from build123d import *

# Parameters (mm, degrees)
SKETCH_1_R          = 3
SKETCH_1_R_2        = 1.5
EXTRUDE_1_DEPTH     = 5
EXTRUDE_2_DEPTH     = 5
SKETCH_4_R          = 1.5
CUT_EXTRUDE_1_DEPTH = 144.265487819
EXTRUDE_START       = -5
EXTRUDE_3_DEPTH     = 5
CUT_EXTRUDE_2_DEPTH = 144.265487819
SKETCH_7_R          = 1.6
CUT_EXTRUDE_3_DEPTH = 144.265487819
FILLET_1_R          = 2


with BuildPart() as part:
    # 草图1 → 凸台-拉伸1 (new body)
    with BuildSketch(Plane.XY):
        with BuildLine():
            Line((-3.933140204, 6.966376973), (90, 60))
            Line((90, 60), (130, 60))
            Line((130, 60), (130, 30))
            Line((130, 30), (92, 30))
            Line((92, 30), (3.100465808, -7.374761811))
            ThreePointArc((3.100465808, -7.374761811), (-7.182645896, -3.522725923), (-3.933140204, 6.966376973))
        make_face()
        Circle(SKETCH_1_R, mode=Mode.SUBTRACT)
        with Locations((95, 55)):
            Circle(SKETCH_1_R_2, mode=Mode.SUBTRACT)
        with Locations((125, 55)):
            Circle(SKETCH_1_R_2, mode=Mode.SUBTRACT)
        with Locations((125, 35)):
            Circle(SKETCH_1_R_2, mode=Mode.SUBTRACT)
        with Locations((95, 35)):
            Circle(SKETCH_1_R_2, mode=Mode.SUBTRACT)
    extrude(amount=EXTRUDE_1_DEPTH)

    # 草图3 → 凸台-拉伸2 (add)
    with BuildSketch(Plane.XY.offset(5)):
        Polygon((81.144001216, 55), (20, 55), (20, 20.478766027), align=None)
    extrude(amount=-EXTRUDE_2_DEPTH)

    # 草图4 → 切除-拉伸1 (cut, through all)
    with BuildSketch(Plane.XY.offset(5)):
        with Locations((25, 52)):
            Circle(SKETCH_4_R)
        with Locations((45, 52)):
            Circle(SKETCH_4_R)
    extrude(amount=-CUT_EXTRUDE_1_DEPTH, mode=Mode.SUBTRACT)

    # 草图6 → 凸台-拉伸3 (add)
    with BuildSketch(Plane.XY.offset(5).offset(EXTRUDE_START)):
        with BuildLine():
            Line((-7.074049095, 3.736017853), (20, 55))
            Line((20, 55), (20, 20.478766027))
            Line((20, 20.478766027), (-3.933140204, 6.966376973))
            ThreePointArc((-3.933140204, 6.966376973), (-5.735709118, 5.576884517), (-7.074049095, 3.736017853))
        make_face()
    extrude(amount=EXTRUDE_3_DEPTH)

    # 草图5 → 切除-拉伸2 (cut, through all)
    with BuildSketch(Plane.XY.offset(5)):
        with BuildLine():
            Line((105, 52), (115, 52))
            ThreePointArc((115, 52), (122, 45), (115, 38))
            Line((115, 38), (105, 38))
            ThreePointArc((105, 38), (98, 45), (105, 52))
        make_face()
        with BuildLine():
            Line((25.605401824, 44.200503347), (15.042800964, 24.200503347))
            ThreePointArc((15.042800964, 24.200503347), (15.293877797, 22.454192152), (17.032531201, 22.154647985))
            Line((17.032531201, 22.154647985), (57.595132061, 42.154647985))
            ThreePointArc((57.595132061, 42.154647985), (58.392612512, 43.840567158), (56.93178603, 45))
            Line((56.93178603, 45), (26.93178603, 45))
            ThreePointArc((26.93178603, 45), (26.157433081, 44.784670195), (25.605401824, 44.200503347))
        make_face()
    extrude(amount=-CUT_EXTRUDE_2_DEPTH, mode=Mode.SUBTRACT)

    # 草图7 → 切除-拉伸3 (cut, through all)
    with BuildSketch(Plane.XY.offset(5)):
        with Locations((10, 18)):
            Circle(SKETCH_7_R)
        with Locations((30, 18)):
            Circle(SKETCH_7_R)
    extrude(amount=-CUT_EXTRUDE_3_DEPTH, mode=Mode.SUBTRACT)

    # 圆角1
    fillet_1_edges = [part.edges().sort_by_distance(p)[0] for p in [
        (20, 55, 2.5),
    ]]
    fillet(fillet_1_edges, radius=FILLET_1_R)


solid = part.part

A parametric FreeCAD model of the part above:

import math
import FreeCAD as App
import Part
import Sketcher
from FreeCAD import Vector
Q = App.Units.Quantity


def edges_at(feature, points):
    """Names of the edges that pass closest to the given points."""
    edges = feature.Shape.Edges
    near = lambda p: min(range(len(edges)), key=lambda i: edges[i].distToShape(Part.Vertex(*p))[0])
    return sorted({f"Edge{near(p) + 1}" for p in points})


def add_polygon(sketch, points):
    """Adds a closed chain of lines whose ends are joined by coincident constraints."""
    first, n = sketch.GeometryCount, len(points)
    for a, b in zip(points, points[1:] + points[:1]):
        sketch.addGeometry(Part.LineSegment(App.Vector(*a, 0), App.Vector(*b, 0)), False)
    for i in range(n):
        sketch.addConstraint(Sketcher.Constraint("Coincident", first + i, 2, first + (i + 1) % n, 1))

doc = App.newDocument("Part")
body = doc.addObject("PartDesign::Body", "Body")

sketch1 = body.newObject("Sketcher::SketchObject", "Sketch")
sketch1.AttachmentSupport = (doc.getObject("XY_Plane"), [""])
sketch1.MapMode = "FlatFace"
sketch1.addGeometry([
    Part.LineSegment(Vector(90, 60, 0), Vector(-3.9, 7, 0)),
    Part.ArcOfCircle(Part.Circle(Vector(0, 0, 0), Vector(0, 0, 1), 8), math.radians(119), math.radians(293)),
    Part.LineSegment(Vector(3.1, -7.4, 0), Vector(92, 30, 0)),
    Part.LineSegment(Vector(92, 30, 0), Vector(130, 30, 0)),
    Part.LineSegment(Vector(130, 30, 0), Vector(130, 60, 0)),
    Part.LineSegment(Vector(130, 60, 0), Vector(90, 60, 0)),
    Part.Circle(Vector(0, 0, 0), Vector(0, 0, 1), 3),
    Part.Circle(Vector(125, 35, 0), Vector(0, 0, 1), 1.5),
    Part.Circle(Vector(95, 35, 0), Vector(0, 0, 1), 1.5),
    Part.Circle(Vector(125, 55, 0), Vector(0, 0, 1), 1.5),
    Part.Circle(Vector(95, 55, 0), Vector(0, 0, 1), 1.5),
], False)
sketch1.addConstraint([
    Sketcher.Constraint("Tangent", 0, 2, 1, 1),
    Sketcher.Constraint("Tangent", 1, 2, 2, 1),
    Sketcher.Constraint("Coincident", 2, 2, 3, 1),
    Sketcher.Constraint("Coincident", 3, 2, 4, 1),
    Sketcher.Constraint("Coincident", 4, 2, 5, 1),
    Sketcher.Constraint("Coincident", 5, 2, 0, 1),
    Sketcher.Constraint("Horizontal", 3),
    Sketcher.Constraint("Vertical", 4),
    Sketcher.Constraint("Horizontal", 5),
    Sketcher.Constraint("Coincident", 1, 3, -1, 1),
    Sketcher.Constraint("Coincident", 6, 3, -1, 1),
    Sketcher.Constraint("Equal", 7, 8),
    Sketcher.Constraint("Equal", 8, 9),
    Sketcher.Constraint("Equal", 9, 10),
    Sketcher.Constraint("Horizontal", 7, 3, 8, 3),
    Sketcher.Constraint("Horizontal", 9, 3, 10, 3),
    Sketcher.Constraint("Vertical", 7, 3, 9, 3),
    Sketcher.Constraint("Vertical", 8, 3, 10, 3),
    Sketcher.Constraint("Diameter", 6, Q("6 mm")),
    Sketcher.Constraint("Diameter", 7, Q("3 mm")),
    Sketcher.Constraint("Radius", 1, Q("8 mm")),
    Sketcher.Constraint("DistanceX", 3, 1, 3, 2, Q("38 mm")),
    Sketcher.Constraint("DistanceX", 5, 2, 5, 1, Q("40 mm")),
    Sketcher.Constraint("DistanceY", 4, 1, 4, 2, Q("30 mm")),
    Sketcher.Constraint("DistanceX", -1, 1, 7, 3, Q("125 mm")),
    Sketcher.Constraint("DistanceY", -1, 1, 7, 3, Q("35 mm")),
    Sketcher.Constraint("DistanceX", -1, 1, 8, 3, Q("95 mm")),
    Sketcher.Constraint("DistanceY", -1, 1, 9, 3, Q("55 mm")),
    Sketcher.Constraint("DistanceX", -1, 1, 2, 2, Q("92 mm")),
    Sketcher.Constraint("DistanceY", -1, 1, 2, 2, Q("30 mm")),
])
pad1 = body.newObject("PartDesign::Pad", "Pad")
pad1.Profile = sketch1
pad1.Length = 5

sketch2 = body.newObject("Sketcher::SketchObject", "Sketch001")
sketch2.AttachmentSupport = (doc.getObject("XY_Plane"), [""])
sketch2.MapMode = "FlatFace"
sketch2.AttachmentOffset = App.Placement(Vector(0, 0, 5), App.Rotation())
add_polygon(sketch2, [(81, 55), (20, 55), (20, 20)])
sketch2.addConstraint([
    Sketcher.Constraint("Horizontal", 0),
    Sketcher.Constraint("Vertical", 1),
    Sketcher.Constraint("DistanceX", -1, 1, 0, 2, Q("20 mm")),
    Sketcher.Constraint("DistanceY", -1, 1, 0, 2, Q("55 mm")),
    Sketcher.Constraint("DistanceX", 0, 2, 0, 1, Q("61.144001 mm")),
    Sketcher.Constraint("DistanceY", 1, 2, 1, 1, Q("34.521234 mm")),
])
pad2 = body.newObject("PartDesign::Pad", "Pad001")
pad2.Profile = sketch2
pad2.Length = 5
pad2.Reversed = True

sketch3 = body.newObject("Sketcher::SketchObject", "Sketch002")
sketch3.AttachmentSupport = (doc.getObject("XY_Plane"), [""])
sketch3.MapMode = "FlatFace"
sketch3.AttachmentOffset = App.Placement(Vector(0, 0, 5), App.Rotation())
sketch3.addGeometry([
    Part.Circle(Vector(25, 52, 0), Vector(0, 0, 1), 1.5),
    Part.Circle(Vector(45, 52, 0), Vector(0, 0, 1), 1.5),
], False)
sketch3.addConstraint([
    Sketcher.Constraint("Equal", 0, 1),
    Sketcher.Constraint("Horizontal", 0, 3, 1, 3),
    Sketcher.Constraint("Diameter", 0, Q("3 mm")),
    Sketcher.Constraint("DistanceX", -1, 1, 0, 3, Q("25 mm")),
    Sketcher.Constraint("DistanceY", -1, 1, 0, 3, Q("52 mm")),
    Sketcher.Constraint("DistanceX", -1, 1, 1, 3, Q("45 mm")),
])
pocket1 = body.newObject("PartDesign::Pocket", "Pocket")
pocket1.Profile = sketch3
pocket1.Type = "ThroughAll"

sketch4 = body.newObject("Sketcher::SketchObject", "Sketch003")
sketch4.AttachmentSupport = (doc.getObject("XY_Plane"), [""])
sketch4.MapMode = "FlatFace"
sketch4.addGeometry([
    Part.LineSegment(Vector(20, 55, 0), Vector(-7.1, 3.7, 0)),
    Part.ArcOfCircle(Part.Circle(Vector(0, 0, 0), Vector(0, 0, 1), 8), math.radians(119), math.radians(152)),
    Part.LineSegment(Vector(-3.9, 7, 0), Vector(20, 20.5, 0)),
    Part.LineSegment(Vector(20, 20.5, 0), Vector(20, 55, 0)),
], False)
sketch4.addConstraint([
    Sketcher.Constraint("Tangent", 0, 2, 1, 2),
    Sketcher.Constraint("Tangent", 1, 1, 2, 1),
    Sketcher.Constraint("Coincident", 2, 2, 3, 1),
    Sketcher.Constraint("Coincident", 3, 2, 0, 1),
    Sketcher.Constraint("Vertical", 3),
    Sketcher.Constraint("Coincident", 1, 3, -1, 1),
    Sketcher.Constraint("Radius", 1, Q("8 mm")),
    Sketcher.Constraint("DistanceX", -1, 1, 2, 2, Q("20 mm")),
    Sketcher.Constraint("DistanceY", -1, 1, 3, 2, Q("55 mm")),
    Sketcher.Constraint("DistanceY", 3, 1, 3, 2, Q("34.521234 mm")),
])
pad3 = body.newObject("PartDesign::Pad", "Pad002")
pad3.Profile = sketch4
pad3.Length = 5

sketch5 = body.newObject("Sketcher::SketchObject", "Sketch004")
sketch5.AttachmentSupport = (doc.getObject("XY_Plane"), [""])
sketch5.MapMode = "FlatFace"
sketch5.AttachmentOffset = App.Placement(Vector(0, 0, 5), App.Rotation())
sketch5.addGeometry([
    Part.LineSegment(Vector(115, 52, 0), Vector(105, 52, 0)),
    Part.ArcOfCircle(Part.Circle(Vector(105, 45, 0), Vector(0, 0, 1), 7), math.radians(90), math.radians(270)),
    Part.LineSegment(Vector(105, 38, 0), Vector(115, 38, 0)),
    Part.ArcOfCircle(Part.Circle(Vector(115, 45, 0), Vector(0, 0, 1), 7), math.radians(-90), math.radians(90)),
    Part.LineSegment(Vector(25.6, 44.2, 0), Vector(15, 24.2, 0)),
    Part.ArcOfCircle(Part.Circle(Vector(16.4, 23.5, 0), Vector(0, 0, 1), 1.5), math.radians(152), math.radians(296)),
    Part.LineSegment(Vector(17, 22.2, 0), Vector(57.6, 42.2, 0)),
    Part.ArcOfCircle(Part.Circle(Vector(56.9, 43.5, 0), Vector(0, 0, 1), 1.5), math.radians(-64), math.radians(90)),
    Part.LineSegment(Vector(56.9, 45, 0), Vector(26.9, 45, 0)),
    Part.ArcOfCircle(Part.Circle(Vector(26.9, 43.5, 0), Vector(0, 0, 1), 1.5), math.radians(90), math.radians(152)),
], False)
sketch5.addConstraint([
    Sketcher.Constraint("Tangent", 0, 2, 1, 1),
    Sketcher.Constraint("Tangent", 1, 2, 2, 1),
    Sketcher.Constraint("Tangent", 2, 2, 3, 1),
    Sketcher.Constraint("Tangent", 3, 2, 0, 1),
    Sketcher.Constraint("Tangent", 4, 2, 5, 1),
    Sketcher.Constraint("Tangent", 5, 2, 6, 1),
    Sketcher.Constraint("Tangent", 6, 2, 7, 1),
    Sketcher.Constraint("Tangent", 7, 2, 8, 1),
    Sketcher.Constraint("Tangent", 8, 2, 9, 1),
    Sketcher.Constraint("Tangent", 9, 2, 4, 1),
    Sketcher.Constraint("Horizontal", 0),
    Sketcher.Constraint("Horizontal", 2),
    Sketcher.Constraint("Horizontal", 8),
    Sketcher.Constraint("Equal", 5, 7),
    Sketcher.Constraint("Equal", 7, 9),
    Sketcher.Constraint("Horizontal", 3, 3, 7, 2),
    Sketcher.Constraint("Radius", 1, Q("7 mm")),
    Sketcher.Constraint("Radius", 5, Q("1.5 mm")),
    Sketcher.Constraint("DistanceX", 0, 2, 0, 1, Q("10 mm")),
    Sketcher.Constraint("DistanceX", 8, 2, 8, 1, Q("30 mm")),
    Sketcher.Constraint("DistanceX", -1, 1, 1, 3, Q("105 mm")),
    Sketcher.Constraint("DistanceY", -1, 1, 1, 3, Q("45 mm")),
    Sketcher.Constraint("DistanceY", 5, 3, 7, 3, Q("20 mm")),
    Sketcher.Constraint("DistanceX", -1, 1, 4, 2, Q("15.042801 mm")),
    Sketcher.Constraint("DistanceX", -1, 1, 9, 2, Q("25.605402 mm")),
])
pocket2 = body.newObject("PartDesign::Pocket", "Pocket001")
pocket2.Profile = sketch5
pocket2.Type = "ThroughAll"

sketch6 = body.newObject("Sketcher::SketchObject", "Sketch005")
sketch6.AttachmentSupport = (doc.getObject("XY_Plane"), [""])
sketch6.MapMode = "FlatFace"
sketch6.AttachmentOffset = App.Placement(Vector(0, 0, 5), App.Rotation())
sketch6.addGeometry([
    Part.Circle(Vector(10, 18, 0), Vector(0, 0, 1), 1.6),
    Part.Circle(Vector(30, 18, 0), Vector(0, 0, 1), 1.6),
], False)
sketch6.addConstraint([
    Sketcher.Constraint("Equal", 0, 1),
    Sketcher.Constraint("Horizontal", 0, 3, 1, 3),
    Sketcher.Constraint("Diameter", 0, Q("3.2 mm")),
    Sketcher.Constraint("DistanceX", -1, 1, 0, 3, Q("10 mm")),
    Sketcher.Constraint("DistanceY", -1, 1, 0, 3, Q("18 mm")),
    Sketcher.Constraint("DistanceX", -1, 1, 1, 3, Q("30 mm")),
])
pocket3 = body.newObject("PartDesign::Pocket", "Pocket002")
pocket3.Profile = sketch6
pocket3.Type = "ThroughAll"
doc.recompute()

fillet = body.newObject("PartDesign::Fillet", "Fillet")
fillet.Base = (pocket3, edges_at(pocket3, [(20, 55, 2.5)]))
fillet.Radius = 2

doc.recompute()
